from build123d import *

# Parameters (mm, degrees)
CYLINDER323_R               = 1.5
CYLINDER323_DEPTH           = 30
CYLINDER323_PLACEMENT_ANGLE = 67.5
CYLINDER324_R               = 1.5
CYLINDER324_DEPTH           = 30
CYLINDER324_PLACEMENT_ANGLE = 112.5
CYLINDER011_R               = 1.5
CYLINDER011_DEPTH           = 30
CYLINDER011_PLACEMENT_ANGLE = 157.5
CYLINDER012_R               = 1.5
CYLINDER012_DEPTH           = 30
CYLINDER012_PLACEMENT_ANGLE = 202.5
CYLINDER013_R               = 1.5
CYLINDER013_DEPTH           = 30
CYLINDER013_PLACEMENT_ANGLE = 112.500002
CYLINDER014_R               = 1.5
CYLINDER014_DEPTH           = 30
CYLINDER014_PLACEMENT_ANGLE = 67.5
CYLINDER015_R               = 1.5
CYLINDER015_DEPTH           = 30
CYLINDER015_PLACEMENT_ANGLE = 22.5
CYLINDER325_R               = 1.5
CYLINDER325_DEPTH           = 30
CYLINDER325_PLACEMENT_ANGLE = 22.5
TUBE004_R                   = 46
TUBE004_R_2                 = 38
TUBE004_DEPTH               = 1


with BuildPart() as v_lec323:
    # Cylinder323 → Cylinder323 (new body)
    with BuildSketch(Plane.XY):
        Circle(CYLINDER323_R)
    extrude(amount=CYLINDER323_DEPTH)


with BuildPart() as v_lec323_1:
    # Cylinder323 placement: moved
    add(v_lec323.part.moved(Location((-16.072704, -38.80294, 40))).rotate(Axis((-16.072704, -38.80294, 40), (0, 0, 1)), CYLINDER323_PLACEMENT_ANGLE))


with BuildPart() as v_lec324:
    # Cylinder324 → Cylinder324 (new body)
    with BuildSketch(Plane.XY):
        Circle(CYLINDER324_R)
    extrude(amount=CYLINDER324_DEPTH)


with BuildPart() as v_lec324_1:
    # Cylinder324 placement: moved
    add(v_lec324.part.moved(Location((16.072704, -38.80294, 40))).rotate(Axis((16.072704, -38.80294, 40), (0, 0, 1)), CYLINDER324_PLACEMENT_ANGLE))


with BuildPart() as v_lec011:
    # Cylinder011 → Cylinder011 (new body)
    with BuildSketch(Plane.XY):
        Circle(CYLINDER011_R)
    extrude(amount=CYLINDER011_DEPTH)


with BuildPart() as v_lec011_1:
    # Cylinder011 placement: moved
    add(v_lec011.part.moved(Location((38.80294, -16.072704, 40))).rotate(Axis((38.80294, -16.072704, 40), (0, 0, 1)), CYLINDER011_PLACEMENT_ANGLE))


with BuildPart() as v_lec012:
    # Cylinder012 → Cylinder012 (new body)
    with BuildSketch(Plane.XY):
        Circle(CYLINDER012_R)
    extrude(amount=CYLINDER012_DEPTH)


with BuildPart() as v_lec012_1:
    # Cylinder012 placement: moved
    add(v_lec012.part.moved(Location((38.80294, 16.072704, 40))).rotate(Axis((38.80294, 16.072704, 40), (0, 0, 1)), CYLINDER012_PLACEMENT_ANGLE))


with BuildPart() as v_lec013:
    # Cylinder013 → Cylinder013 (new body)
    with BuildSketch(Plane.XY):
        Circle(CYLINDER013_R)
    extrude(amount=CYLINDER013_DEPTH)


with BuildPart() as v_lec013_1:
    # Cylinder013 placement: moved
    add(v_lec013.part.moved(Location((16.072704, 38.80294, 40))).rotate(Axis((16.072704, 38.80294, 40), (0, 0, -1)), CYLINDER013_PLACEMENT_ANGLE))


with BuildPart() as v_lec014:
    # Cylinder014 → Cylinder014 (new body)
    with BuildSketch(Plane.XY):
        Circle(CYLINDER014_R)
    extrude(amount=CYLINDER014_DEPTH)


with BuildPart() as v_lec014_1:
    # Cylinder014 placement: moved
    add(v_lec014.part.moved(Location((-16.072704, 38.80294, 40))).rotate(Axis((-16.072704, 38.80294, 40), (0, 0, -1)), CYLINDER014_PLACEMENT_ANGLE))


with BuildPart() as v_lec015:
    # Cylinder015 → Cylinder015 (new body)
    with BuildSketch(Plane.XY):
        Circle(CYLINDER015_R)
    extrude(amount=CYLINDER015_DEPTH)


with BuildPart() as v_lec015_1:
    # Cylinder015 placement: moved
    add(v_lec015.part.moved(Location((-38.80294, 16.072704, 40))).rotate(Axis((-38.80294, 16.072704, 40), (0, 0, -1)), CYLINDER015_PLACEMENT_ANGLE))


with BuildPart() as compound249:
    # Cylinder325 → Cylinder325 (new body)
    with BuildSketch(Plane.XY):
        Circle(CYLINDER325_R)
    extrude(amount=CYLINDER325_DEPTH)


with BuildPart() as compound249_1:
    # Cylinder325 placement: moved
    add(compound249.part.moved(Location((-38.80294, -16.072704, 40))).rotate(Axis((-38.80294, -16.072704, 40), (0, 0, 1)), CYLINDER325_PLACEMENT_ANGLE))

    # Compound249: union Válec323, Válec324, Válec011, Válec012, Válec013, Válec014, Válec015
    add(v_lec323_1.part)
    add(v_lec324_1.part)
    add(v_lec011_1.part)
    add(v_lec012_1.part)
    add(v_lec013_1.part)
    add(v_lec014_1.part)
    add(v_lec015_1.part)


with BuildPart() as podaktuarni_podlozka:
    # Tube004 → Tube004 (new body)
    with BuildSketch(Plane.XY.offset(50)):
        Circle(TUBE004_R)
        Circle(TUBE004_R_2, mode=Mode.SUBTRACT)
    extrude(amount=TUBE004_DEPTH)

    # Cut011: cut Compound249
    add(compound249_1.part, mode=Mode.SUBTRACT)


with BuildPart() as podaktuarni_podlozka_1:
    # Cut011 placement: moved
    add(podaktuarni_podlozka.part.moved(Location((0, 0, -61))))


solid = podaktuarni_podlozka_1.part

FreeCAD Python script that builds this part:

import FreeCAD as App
import Part
import Sketcher
from FreeCAD import Vector

doc = App.newDocument("Part")
body = doc.addObject("PartDesign::Body", "Body")

# Sketch on XY plane
sketch1 = doc.addObject("Sketcher::SketchObject", "Sketch")
body.addObject(sketch1)
sketch1.AttachmentSupport = (doc.XY_Plane, [""])
sketch1.MapMode = "FlatFace"
sketch1.addGeometry(Part.Circle(Vector(0, 0, 0), Vector(0, 0, 1), 1.5), False)
sketch1.addConstraint(Sketcher.Constraint("Coincident", 0, 3, -1, 1))
sketch1.addConstraint(Sketcher.Constraint("Diameter", 0, 3.0))
pad1 = doc.addObject("PartDesign::Pad", "Pad")
body.addObject(pad1)
pad1.Profile = sketch1
pad1.Length = 30
body2 = doc.addObject("PartDesign::Body", "Body001")
doc.recompute()

body.Placement = App.Placement(Vector(-16.072704, -38.80294, 40), App.Rotation(Vector(0, 0, 1), 67.5))
boolean = doc.addObject("PartDesign::Boolean", "Boolean")
body2.addObject(boolean)
boolean.Type = "Fuse"
boolean.addObjects([body])
body3 = doc.addObject("PartDesign::Body", "Body002")

# Sketch on XY plane
sketch2 = doc.addObject("Sketcher::SketchObject", "Sketch001")
body3.addObject(sketch2)
sketch2.AttachmentSupport = (doc.getObject("XY_Plane002"), [""])
sketch2.MapMode = "FlatFace"
sketch2.addGeometry(Part.Circle(Vector(0, 0, 0), Vector(0, 0, 1), 1.5), False)
sketch2.addConstraint(Sketcher.Constraint("Coincident", 0, 3, -1, 1))
sketch2.addConstraint(Sketcher.Constraint("Diameter", 0, 3.0))
pad2 = doc.addObject("PartDesign::Pad", "Pad001")
body3.addObject(pad2)
pad2.Profile = sketch2
pad2.Length = 30
body4 = doc.addObject("PartDesign::Body", "Body003")
doc.recompute()

body3.Placement = App.Placement(Vector(16.072704, -38.80294, 40), App.Rotation(Vector(0, 0, 1), 112.5))
boolean2 = doc.addObject("PartDesign::Boolean", "Boolean001")
body4.addObject(boolean2)
boolean2.Type = "Fuse"
boolean2.addObjects([body3])
body5 = doc.addObject("PartDesign::Body", "Body004")

# Sketch on XY plane
sketch3 = doc.addObject("Sketcher::SketchObject", "Sketch002")
body5.addObject(sketch3)
sketch3.AttachmentSupport = (doc.getObject("XY_Plane004"), [""])
sketch3.MapMode = "FlatFace"
sketch3.addGeometry(Part.Circle(Vector(0, 0, 0), Vector(0, 0, 1), 1.5), False)
sketch3.addConstraint(Sketcher.Constraint("Coincident", 0, 3, -1, 1))
sketch3.addConstraint(Sketcher.Constraint("Diameter", 0, 3.0))
pad3 = doc.addObject("PartDesign::Pad", "Pad002")
body5.addObject(pad3)
pad3.Profile = sketch3
pad3.Length = 30
body6 = doc.addObject("PartDesign::Body", "Body005")
doc.recompute()

body5.Placement = App.Placement(Vector(38.80294, -16.072704, 40), App.Rotation(Vector(0, 0, 1), 157.5))
boolean3 = doc.addObject("PartDesign::Boolean", "Boolean002")
body6.addObject(boolean3)
boolean3.Type = "Fuse"
boolean3.addObjects([body5])
body7 = doc.addObject("PartDesign::Body", "Body006")

# Sketch on XY plane
sketch4 = doc.addObject("Sketcher::SketchObject", "Sketch003")
body7.addObject(sketch4)
sketch4.AttachmentSupport = (doc.getObject("XY_Plane006"), [""])
sketch4.MapMode = "FlatFace"
sketch4.addGeometry(Part.Circle(Vector(0, 0, 0), Vector(0, 0, 1), 1.5), False)
sketch4.addConstraint(Sketcher.Constraint("Coincident", 0, 3, -1, 1))
sketch4.addConstraint(Sketcher.Constraint("Diameter", 0, 3.0))
pad4 = doc.addObject("PartDesign::Pad", "Pad003")
body7.addObject(pad4)
pad4.Profile = sketch4
pad4.Length = 30
body8 = doc.addObject("PartDesign::Body", "Body007")
doc.recompute()

body7.Placement = App.Placement(Vector(38.80294, 16.072704, 40), App.Rotation(Vector(0, 0, 1), 202.5))
boolean4 = doc.addObject("PartDesign::Boolean", "Boolean003")
body8.addObject(boolean4)
boolean4.Type = "Fuse"
boolean4.addObjects([body7])
body9 = doc.addObject("PartDesign::Body", "Body008")

# Sketch on XY plane
sketch5 = doc.addObject("Sketcher::SketchObject", "Sketch004")
body9.addObject(sketch5)
sketch5.AttachmentSupport = (doc.getObject("XY_Plane008"), [""])
sketch5.MapMode = "FlatFace"
sketch5.addGeometry(Part.Circle(Vector(0, 0, 0), Vector(0, 0, 1), 1.5), False)
sketch5.addConstraint(Sketcher.Constraint("Coincident", 0, 3, -1, 1))
sketch5.addConstraint(Sketcher.Constraint("Diameter", 0, 3.0))
pad5 = doc.addObject("PartDesign::Pad", "Pad004")
body9.addObject(pad5)
pad5.Profile = sketch5
pad5.Length = 30
body10 = doc.addObject("PartDesign::Body", "Body009")
doc.recompute()

body9.Placement = App.Placement(Vector(16.072704, 38.80294, 40), App.Rotation(Vector(0, 0, -1), 112.500002))
boolean5 = doc.addObject("PartDesign::Boolean", "Boolean004")
body10.addObject(boolean5)
boolean5.Type = "Fuse"
boolean5.addObjects([body9])
body11 = doc.addObject("PartDesign::Body", "Body010")

# Sketch on XY plane
sketch6 = doc.addObject("Sketcher::SketchObject", "Sketch005")
body11.addObject(sketch6)
sketch6.AttachmentSupport = (doc.getObject("XY_Plane010"), [""])
sketch6.MapMode = "FlatFace"
sketch6.addGeometry(Part.Circle(Vector(0, 0, 0), Vector(0, 0, 1), 1.5), False)
sketch6.addConstraint(Sketcher.Constraint("Coincident", 0, 3, -1, 1))
sketch6.addConstraint(Sketcher.Constraint("Diameter", 0, 3.0))
pad6 = doc.addObject("PartDesign::Pad", "Pad005")
body11.addObject(pad6)
pad6.Profile = sketch6
pad6.Length = 30
body12 = doc.addObject("PartDesign::Body", "Body011")
doc.recompute()

body11.Placement = App.Placement(Vector(-16.072704, 38.80294, 40), App.Rotation(Vector(0, 0, -1), 67.5))
boolean6 = doc.addObject("PartDesign::Boolean", "Boolean005")
body12.addObject(boolean6)
boolean6.Type = "Fuse"
boolean6.addObjects([body11])
body13 = doc.addObject("PartDesign::Body", "Body012")

# Sketch on XY plane
sketch7 = doc.addObject("Sketcher::SketchObject", "Sketch006")
body13.addObject(sketch7)
sketch7.AttachmentSupport = (doc.getObject("XY_Plane012"), [""])
sketch7.MapMode = "FlatFace"
sketch7.addGeometry(Part.Circle(Vector(0, 0, 0), Vector(0, 0, 1), 1.5), False)
sketch7.addConstraint(Sketcher.Constraint("Coincident", 0, 3, -1, 1))
sketch7.addConstraint(Sketcher.Constraint("Diameter", 0, 3.0))
pad7 = doc.addObject("PartDesign::Pad", "Pad006")
body13.addObject(pad7)
pad7.Profile = sketch7
pad7.Length = 30
body14 = doc.addObject("PartDesign::Body", "Body013")
doc.recompute()

body13.Placement = App.Placement(Vector(-38.80294, 16.072704, 40), App.Rotation(Vector(0, 0, -1), 22.5))
boolean7 = doc.addObject("PartDesign::Boolean", "Boolean006")
body14.addObject(boolean7)
boolean7.Type = "Fuse"
boolean7.addObjects([body13])
body15 = doc.addObject("PartDesign::Body", "Body014")

# Sketch on XY plane
sketch8 = doc.addObject("Sketcher::SketchObject", "Sketch007")
body15.addObject(sketch8)
sketch8.AttachmentSupport = (doc.getObject("XY_Plane014"), [""])
sketch8.MapMode = "FlatFace"
sketch8.addGeometry(Part.Circle(Vector(0, 0, 0), Vector(0, 0, 1), 1.5), False)
sketch8.addConstraint(Sketcher.Constraint("Coincident", 0, 3, -1, 1))
sketch8.addConstraint(Sketcher.Constraint("Diameter", 0, 3.0))
pad8 = doc.addObject("PartDesign::Pad", "Pad007")
body15.addObject(pad8)
pad8.Profile = sketch8
pad8.Length = 30
body16 = doc.addObject("PartDesign::Body", "Body015")
body16.AllowCompound = True
doc.recompute()

body15.Placement = App.Placement(Vector(-38.80294, -16.072704, 40), App.Rotation(Vector(0, 0, 1), 22.5))
boolean8 = doc.addObject("PartDesign::Boolean", "Boolean007")
body16.addObject(boolean8)
boolean8.Type = "Fuse"
boolean8.addObjects([body15])
doc.recompute()

boolean9 = doc.addObject("PartDesign::Boolean", "Boolean008")
body16.addObject(boolean9)
boolean9.Type = "Fuse"
boolean9.addObjects([body2])
doc.recompute()

boolean10 = doc.addObject("PartDesign::Boolean", "Boolean009")
body16.addObject(boolean10)
boolean10.Type = "Fuse"
boolean10.addObjects([body4])
doc.recompute()

boolean11 = doc.addObject("PartDesign::Boolean", "Boolean010")
body16.addObject(boolean11)
boolean11.Type = "Fuse"
boolean11.addObjects([body6])
doc.recompute()

boolean12 = doc.addObject("PartDesign::Boolean", "Boolean011")
body16.addObject(boolean12)
boolean12.Type = "Fuse"
boolean12.addObjects([body8])
doc.recompute()

boolean13 = doc.addObject("PartDesign::Boolean", "Boolean012")
body16.addObject(boolean13)
boolean13.Type = "Fuse"
boolean13.addObjects([body10])
doc.recompute()

boolean14 = doc.addObject("PartDesign::Boolean", "Boolean013")
body16.addObject(boolean14)
boolean14.Type = "Fuse"
boolean14.addObjects([body12])
doc.recompute()

boolean15 = doc.addObject("PartDesign::Boolean", "Boolean014")
body16.addObject(boolean15)
boolean15.Type = "Fuse"
boolean15.addObjects([body14])
body17 = doc.addObject("PartDesign::Body", "Body016")

# Sketch on XY plane
sketch9 = doc.addObject("Sketcher::SketchObject", "Sketch008")
body17.addObject(sketch9)
sketch9.AttachmentSupport = (doc.getObject("XY_Plane016"), [""])
sketch9.MapMode = "FlatFace"
sketch9.AttachmentOffset = App.Placement(Vector(0, 0, 50), App.Rotation())
sketch9.addGeometry(Part.Circle(Vector(0, 0, 0), Vector(0, 0, 1), 46), False)
sketch9.addGeometry(Part.Circle(Vector(0, 0, 0), Vector(0, 0, 1), 38), False)
sketch9.addConstraint(Sketcher.Constraint("Coincident", 0, 3, -1, 1))
sketch9.addConstraint(Sketcher.Constraint("Coincident", 1, 3, -1, 1))
sketch9.addConstraint(Sketcher.Constraint("Diameter", 0, 92.0))
sketch9.addConstraint(Sketcher.Constraint("Diameter", 1, 76.0))
pad9 = doc.addObject("PartDesign::Pad", "Pad008")
body17.addObject(pad9)
pad9.Profile = sketch9
pad9.Length = 1
doc.recompute()

boolean16 = doc.addObject("PartDesign::Boolean", "Boolean015")
body17.addObject(boolean16)
boolean16.Type = "Cut"
boolean16.addObjects([body16])
body18 = doc.addObject("PartDesign::Body", "Body017")
doc.recompute()

body17.Placement = App.Placement(Vector(0, 0, -61), App.Rotation(Vector(0, 0, 1), 0))
boolean17 = doc.addObject("PartDesign::Boolean", "Boolean016")
body18.addObject(boolean17)
boolean17.Type = "Fuse"
boolean17.addObjects([body17])

doc.recompute()
